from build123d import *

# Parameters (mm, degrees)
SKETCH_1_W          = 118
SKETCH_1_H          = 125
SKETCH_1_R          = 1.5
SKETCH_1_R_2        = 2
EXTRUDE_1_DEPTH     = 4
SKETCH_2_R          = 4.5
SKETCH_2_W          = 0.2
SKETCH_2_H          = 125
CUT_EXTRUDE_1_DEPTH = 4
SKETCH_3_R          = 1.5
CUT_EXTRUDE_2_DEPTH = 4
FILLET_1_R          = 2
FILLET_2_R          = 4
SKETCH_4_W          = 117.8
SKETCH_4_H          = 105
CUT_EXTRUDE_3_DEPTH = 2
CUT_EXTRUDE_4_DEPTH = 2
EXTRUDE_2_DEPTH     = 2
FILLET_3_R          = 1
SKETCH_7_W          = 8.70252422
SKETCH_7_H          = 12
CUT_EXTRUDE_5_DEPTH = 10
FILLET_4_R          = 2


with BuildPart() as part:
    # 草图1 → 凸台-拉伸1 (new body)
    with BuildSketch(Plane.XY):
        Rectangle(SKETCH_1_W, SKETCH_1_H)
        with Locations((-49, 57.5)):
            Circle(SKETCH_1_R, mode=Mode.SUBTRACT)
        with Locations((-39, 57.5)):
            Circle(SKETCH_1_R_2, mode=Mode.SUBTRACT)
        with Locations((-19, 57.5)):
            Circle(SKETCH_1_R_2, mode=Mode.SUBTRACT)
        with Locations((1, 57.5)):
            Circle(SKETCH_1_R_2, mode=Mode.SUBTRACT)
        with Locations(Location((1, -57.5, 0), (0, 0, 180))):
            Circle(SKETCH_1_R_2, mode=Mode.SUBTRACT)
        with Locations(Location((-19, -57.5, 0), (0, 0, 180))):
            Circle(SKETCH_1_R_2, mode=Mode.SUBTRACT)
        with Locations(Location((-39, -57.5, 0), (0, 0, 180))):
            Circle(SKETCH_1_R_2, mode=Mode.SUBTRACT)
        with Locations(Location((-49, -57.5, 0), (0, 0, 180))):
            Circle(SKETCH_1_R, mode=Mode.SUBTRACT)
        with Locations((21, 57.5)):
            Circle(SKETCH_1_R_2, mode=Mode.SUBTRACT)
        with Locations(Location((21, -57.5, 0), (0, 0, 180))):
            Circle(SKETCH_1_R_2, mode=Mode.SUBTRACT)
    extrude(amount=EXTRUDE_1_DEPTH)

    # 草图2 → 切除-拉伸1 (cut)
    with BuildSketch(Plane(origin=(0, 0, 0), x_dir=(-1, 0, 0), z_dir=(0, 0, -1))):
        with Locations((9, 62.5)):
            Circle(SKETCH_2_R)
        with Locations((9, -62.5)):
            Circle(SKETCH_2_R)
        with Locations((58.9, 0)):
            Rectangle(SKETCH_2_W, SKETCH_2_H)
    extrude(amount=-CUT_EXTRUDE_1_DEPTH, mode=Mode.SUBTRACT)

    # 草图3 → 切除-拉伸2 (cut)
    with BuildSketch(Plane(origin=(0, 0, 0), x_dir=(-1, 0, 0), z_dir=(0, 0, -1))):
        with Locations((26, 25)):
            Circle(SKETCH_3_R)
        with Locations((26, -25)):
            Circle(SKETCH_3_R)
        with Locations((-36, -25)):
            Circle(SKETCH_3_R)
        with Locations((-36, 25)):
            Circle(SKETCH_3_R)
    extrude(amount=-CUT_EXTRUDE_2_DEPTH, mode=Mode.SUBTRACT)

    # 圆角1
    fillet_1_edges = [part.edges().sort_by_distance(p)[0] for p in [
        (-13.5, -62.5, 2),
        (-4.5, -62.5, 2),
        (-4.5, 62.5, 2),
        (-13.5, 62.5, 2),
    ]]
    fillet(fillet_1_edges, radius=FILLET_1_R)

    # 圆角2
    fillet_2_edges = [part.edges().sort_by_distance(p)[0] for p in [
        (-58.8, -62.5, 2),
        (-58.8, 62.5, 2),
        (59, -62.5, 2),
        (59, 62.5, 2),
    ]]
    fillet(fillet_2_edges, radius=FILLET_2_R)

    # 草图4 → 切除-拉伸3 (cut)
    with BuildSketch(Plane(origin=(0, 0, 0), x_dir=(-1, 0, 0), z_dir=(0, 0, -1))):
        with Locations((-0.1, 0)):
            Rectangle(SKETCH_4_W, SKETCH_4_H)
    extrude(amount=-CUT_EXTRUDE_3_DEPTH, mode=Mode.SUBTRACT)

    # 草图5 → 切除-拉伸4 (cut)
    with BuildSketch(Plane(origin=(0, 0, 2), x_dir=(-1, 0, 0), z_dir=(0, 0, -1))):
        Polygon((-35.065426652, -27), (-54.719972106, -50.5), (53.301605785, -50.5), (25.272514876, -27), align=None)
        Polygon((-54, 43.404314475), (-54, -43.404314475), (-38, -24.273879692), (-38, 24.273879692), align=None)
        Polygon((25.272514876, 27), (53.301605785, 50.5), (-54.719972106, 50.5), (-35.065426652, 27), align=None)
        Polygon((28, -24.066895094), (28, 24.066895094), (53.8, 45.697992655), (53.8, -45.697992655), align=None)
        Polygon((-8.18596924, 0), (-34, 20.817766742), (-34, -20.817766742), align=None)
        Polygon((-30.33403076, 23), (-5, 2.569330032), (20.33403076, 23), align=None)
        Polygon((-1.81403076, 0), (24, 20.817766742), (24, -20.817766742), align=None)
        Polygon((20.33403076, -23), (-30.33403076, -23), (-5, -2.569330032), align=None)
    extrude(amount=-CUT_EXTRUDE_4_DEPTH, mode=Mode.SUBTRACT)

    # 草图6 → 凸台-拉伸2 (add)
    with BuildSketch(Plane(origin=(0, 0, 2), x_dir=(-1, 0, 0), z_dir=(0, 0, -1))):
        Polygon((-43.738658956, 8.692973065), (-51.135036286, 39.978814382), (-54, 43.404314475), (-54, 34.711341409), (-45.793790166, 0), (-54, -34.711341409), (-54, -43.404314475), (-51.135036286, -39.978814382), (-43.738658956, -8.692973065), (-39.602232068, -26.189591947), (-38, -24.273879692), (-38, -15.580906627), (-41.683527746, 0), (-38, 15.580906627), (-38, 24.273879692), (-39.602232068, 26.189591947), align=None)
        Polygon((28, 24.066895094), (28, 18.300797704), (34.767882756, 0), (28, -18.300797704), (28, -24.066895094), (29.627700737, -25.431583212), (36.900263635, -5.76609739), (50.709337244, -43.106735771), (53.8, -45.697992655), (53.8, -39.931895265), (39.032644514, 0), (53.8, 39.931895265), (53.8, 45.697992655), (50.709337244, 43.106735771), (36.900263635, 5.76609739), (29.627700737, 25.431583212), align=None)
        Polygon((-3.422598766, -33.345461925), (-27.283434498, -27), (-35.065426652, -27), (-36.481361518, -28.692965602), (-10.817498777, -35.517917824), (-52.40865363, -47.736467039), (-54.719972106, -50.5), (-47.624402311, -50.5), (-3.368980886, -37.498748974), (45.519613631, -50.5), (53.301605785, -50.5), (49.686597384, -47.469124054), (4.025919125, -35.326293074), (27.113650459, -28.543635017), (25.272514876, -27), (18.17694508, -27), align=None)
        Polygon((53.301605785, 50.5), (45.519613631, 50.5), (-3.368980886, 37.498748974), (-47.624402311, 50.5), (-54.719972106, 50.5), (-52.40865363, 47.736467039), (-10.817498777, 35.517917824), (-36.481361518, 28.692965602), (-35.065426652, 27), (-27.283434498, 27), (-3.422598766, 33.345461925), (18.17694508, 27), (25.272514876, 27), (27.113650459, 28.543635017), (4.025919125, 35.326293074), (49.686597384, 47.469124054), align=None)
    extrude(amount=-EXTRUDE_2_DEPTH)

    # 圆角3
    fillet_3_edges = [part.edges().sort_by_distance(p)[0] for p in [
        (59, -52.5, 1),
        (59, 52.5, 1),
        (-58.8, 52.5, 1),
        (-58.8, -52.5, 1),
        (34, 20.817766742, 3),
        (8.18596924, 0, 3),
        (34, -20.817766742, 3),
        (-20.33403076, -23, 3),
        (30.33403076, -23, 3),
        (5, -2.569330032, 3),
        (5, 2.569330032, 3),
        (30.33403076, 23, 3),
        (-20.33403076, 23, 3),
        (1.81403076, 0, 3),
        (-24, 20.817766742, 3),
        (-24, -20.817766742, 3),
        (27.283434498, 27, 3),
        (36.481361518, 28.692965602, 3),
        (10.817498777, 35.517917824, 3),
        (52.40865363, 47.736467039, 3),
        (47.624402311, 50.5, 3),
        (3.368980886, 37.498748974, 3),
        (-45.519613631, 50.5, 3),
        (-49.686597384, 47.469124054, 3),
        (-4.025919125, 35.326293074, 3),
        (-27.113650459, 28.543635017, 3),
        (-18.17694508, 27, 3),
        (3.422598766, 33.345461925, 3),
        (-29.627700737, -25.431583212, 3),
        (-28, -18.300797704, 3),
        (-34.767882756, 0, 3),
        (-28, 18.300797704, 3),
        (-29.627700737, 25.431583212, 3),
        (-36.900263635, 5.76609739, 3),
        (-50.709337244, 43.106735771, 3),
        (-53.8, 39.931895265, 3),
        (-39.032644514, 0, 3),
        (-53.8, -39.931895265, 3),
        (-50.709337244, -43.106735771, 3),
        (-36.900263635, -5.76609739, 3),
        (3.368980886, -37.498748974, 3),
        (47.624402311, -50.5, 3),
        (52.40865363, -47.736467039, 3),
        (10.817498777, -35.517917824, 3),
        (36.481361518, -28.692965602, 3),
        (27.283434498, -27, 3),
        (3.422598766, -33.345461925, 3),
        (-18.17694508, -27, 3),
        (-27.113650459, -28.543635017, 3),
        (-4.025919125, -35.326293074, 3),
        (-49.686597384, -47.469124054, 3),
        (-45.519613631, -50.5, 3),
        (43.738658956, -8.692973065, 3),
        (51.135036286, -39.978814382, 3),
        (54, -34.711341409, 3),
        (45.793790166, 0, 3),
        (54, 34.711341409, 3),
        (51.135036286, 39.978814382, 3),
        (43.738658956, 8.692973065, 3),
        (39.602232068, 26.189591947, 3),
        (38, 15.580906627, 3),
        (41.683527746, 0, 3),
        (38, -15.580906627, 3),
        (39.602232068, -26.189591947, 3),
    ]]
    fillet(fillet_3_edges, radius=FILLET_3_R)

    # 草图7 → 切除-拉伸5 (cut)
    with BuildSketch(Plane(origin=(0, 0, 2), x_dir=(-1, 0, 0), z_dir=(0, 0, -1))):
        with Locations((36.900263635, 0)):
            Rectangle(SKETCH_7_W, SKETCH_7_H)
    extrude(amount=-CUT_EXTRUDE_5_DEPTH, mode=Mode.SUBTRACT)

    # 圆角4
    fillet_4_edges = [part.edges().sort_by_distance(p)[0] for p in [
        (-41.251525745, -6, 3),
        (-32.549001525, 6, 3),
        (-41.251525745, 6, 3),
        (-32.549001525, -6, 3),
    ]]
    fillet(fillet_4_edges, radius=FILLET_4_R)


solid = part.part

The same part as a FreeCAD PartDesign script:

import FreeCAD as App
import Part
import Sketcher
from FreeCAD import Vector


def edges_at(feature, points):
    """Names of the edges that pass closest to the given points."""
    edges = feature.Shape.Edges
    near = lambda p: min(range(len(edges)), key=lambda i: edges[i].distToShape(Part.Vertex(*p))[0])
    return sorted({f"Edge{near(p) + 1}" for p in points})


def add_polygon(sketch, points):
    """Adds a closed chain of lines whose ends are joined by coincident constraints."""
    first, n = sketch.GeometryCount, len(points)
    for a, b in zip(points, points[1:] + points[:1]):
        sketch.addGeometry(Part.LineSegment(App.Vector(*a, 0), App.Vector(*b, 0)), False)
    for i in range(n):
        sketch.addConstraint(Sketcher.Constraint("Coincident", first + i, 2, first + (i + 1) % n, 1))

doc = App.newDocument("Part")
body = doc.addObject("PartDesign::Body", "Body")

# Sketch on XY plane
sketch1 = body.newObject("Sketcher::SketchObject", "Sketch")
sketch1.AttachmentSupport = (doc.getObject("XY_Plane"), [""])
sketch1.MapMode = "FlatFace"
add_polygon(sketch1, [(-59, 62.5), (-59, -62.5), (59, -62.5), (59, 62.5)])  # lines 0-3
sketch1.addGeometry(Part.Circle(Vector(-49, -57.5, 0), Vector(0, 0, 1), 1.5), False)  # 4
sketch1.addGeometry(Part.Circle(Vector(-39, -57.5, 0), Vector(0, 0, 1), 2), False)  # 5
sketch1.addGeometry(Part.Circle(Vector(-19, -57.5, 0), Vector(0, 0, 1), 2), False)  # 6
sketch1.addGeometry(Part.Circle(Vector(1, -57.5, 0), Vector(0, 0, 1), 2), False)  # 7
sketch1.addGeometry(Part.Circle(Vector(21, -57.5, 0), Vector(0, 0, 1), 2), False)  # 8
sketch1.addGeometry(Part.Circle(Vector(-49, 57.5, 0), Vector(0, 0, 1), 1.5), False)  # 9
sketch1.addGeometry(Part.Circle(Vector(-39, 57.5, 0), Vector(0, 0, 1), 2), False)  # 10
sketch1.addGeometry(Part.Circle(Vector(-19, 57.5, 0), Vector(0, 0, 1), 2), False)  # 11
sketch1.addGeometry(Part.Circle(Vector(1, 57.5, 0), Vector(0, 0, 1), 2), False)  # 12
sketch1.addGeometry(Part.Circle(Vector(21, 57.5, 0), Vector(0, 0, 1), 2), False)  # 13
sketch1.addConstraint([
    Sketcher.Constraint("Vertical", 0),
    Sketcher.Constraint("Horizontal", 1),
    Sketcher.Constraint("Vertical", 2),
    Sketcher.Constraint("Horizontal", 3),
    Sketcher.Constraint("Equal", 5, 6),
    Sketcher.Constraint("Equal", 6, 7),
    Sketcher.Constraint("Equal", 7, 8),
    Sketcher.Constraint("Equal", 4, 9),
    Sketcher.Constraint("Equal", 8, 10),
    Sketcher.Constraint("Equal", 10, 11),
    Sketcher.Constraint("Equal", 11, 12),
    Sketcher.Constraint("Equal", 12, 13),
    Sketcher.Constraint("Symmetric", 0, 2, 2, 2, -1, 1),
    Sketcher.Constraint("Symmetric", 4, 3, 9, 3, -1),
    Sketcher.Constraint("Symmetric", 5, 3, 10, 3, -1),
    Sketcher.Constraint("Symmetric", 6, 3, 11, 3, -1),
    Sketcher.Constraint("Symmetric", 7, 3, 12, 3, -1),
    Sketcher.Constraint("Symmetric", 8, 3, 13, 3, -1),
    Sketcher.Constraint("Horizontal", 4, 3, 5, 3),
    Sketcher.Constraint("Horizontal", 5, 3, 6, 3),
    Sketcher.Constraint("Horizontal", 6, 3, 7, 3),
    Sketcher.Constraint("Horizontal", 7, 3, 8, 3),
    Sketcher.Constraint("Diameter", 4, 3.0),
    Sketcher.Constraint("Diameter", 5, 4.0),
    Sketcher.Constraint("DistanceX", 1, 1, 1, 2, 118.0),
    Sketcher.Constraint("DistanceY", 0, 2, 0, 1, 125.0),
    Sketcher.Constraint("DistanceX", 4, 3, -1, 1, 49.0),
    Sketcher.Constraint("DistanceX", 5, 3, -1, 1, 39.0),
    Sketcher.Constraint("DistanceX", 6, 3, -1, 1, 19.0),
    Sketcher.Constraint("DistanceX", -1, 1, 7, 3, 1.0),
    Sketcher.Constraint("DistanceX", -1, 1, 8, 3, 21.0),
    Sketcher.Constraint("DistanceY", 4, 3, 9, 3, 115.0),
])
pad1 = body.newObject("PartDesign::Pad", "Pad")
pad1.Profile = sketch1
pad1.Length = 4

# Sketch on XY plane
sketch2 = body.newObject("Sketcher::SketchObject", "Sketch001")
sketch2.AttachmentSupport = (doc.getObject("XY_Plane"), [""])
sketch2.MapMode = "FlatFace"
sketch2.addGeometry(Part.Circle(Vector(-9, 62.5, 0), Vector(0, 0, 1), 4.5), False)  # 0
sketch2.addGeometry(Part.Circle(Vector(-9, -62.5, 0), Vector(0, 0, 1), 4.5), False)  # 1
add_polygon(sketch2, [(-58.8, 62.5), (-58.8, -62.5), (-59, -62.5), (-59, 62.5)])  # lines 2-5
sketch2.addConstraint([
    Sketcher.Constraint("Vertical", 2),
    Sketcher.Constraint("Horizontal", 3),
    Sketcher.Constraint("Vertical", 4),
    Sketcher.Constraint("Horizontal", 5),
    Sketcher.Constraint("Equal", 0, 1),
    Sketcher.Constraint("Symmetric", 0, 3, 1, 3, -1),
    Sketcher.Constraint("Horizontal", 1, 3, 2, 2),
    Sketcher.Constraint("Horizontal", 0, 3, 4, 2),
    Sketcher.Constraint("Diameter", 0, 9.0),
    Sketcher.Constraint("DistanceY", 2, 2, 2, 1, 125.0),
    Sketcher.Constraint("DistanceX", 3, 2, 3, 1, 0.2),
    Sketcher.Constraint("DistanceX", 0, 3, -1, 1, 9.0),
    Sketcher.Constraint("DistanceX", 3, 2, -1, 1, 59.0),
])
pocket1 = body.newObject("PartDesign::Pocket", "Pocket")
pocket1.Profile = sketch2
pocket1.Length = 4
pocket1.Reversed = True

# Sketch on XY plane
sketch3 = body.newObject("Sketcher::SketchObject", "Sketch002")
sketch3.AttachmentSupport = (doc.getObject("XY_Plane"), [""])
sketch3.MapMode = "FlatFace"
sketch3.addGeometry([
    Part.Circle(Vector(-26, 25, 0), Vector(0, 0, 1), 1.5),
    Part.Circle(Vector(-26, -25, 0), Vector(0, 0, 1), 1.5),
    Part.Circle(Vector(36, -25, 0), Vector(0, 0, 1), 1.5),
    Part.Circle(Vector(36, 25, 0), Vector(0, 0, 1), 1.5),
], False)
sketch3.addConstraint([
    Sketcher.Constraint("Equal", 0, 1),
    Sketcher.Constraint("Equal", 1, 2),
    Sketcher.Constraint("Equal", 2, 3),
    Sketcher.Constraint("Symmetric", 0, 3, 1, 3, -1),
    Sketcher.Constraint("Symmetric", 2, 3, 3, 3, -1),
    Sketcher.Constraint("Horizontal", 1, 3, 2, 3),
    Sketcher.Constraint("Diameter", 0, 3.0),
    Sketcher.Constraint("DistanceX", 0, 3, -1, 1, 26.0),
    Sketcher.Constraint("DistanceY", -1, 1, 0, 3, 25.0),
    Sketcher.Constraint("DistanceX", -1, 1, 2, 3, 36.0),
])
pocket2 = body.newObject("PartDesign::Pocket", "Pocket001")
pocket2.Profile = sketch3
pocket2.Length = 4
pocket2.Reversed = True
doc.recompute()

fillet = body.newObject("PartDesign::Fillet", "Fillet")
fillet.Base = (pocket2, edges_at(pocket2, [
    (-13.5, -62.5, 2),
    (-4.5, -62.5, 2),
    (-4.5, 62.5, 2),
    (-13.5, 62.5, 2),
]))
fillet.Radius = 2
doc.recompute()

fillet2 = body.newObject("PartDesign::Fillet", "Fillet001")
fillet2.Base = (fillet, edges_at(fillet, [
    (-58.8, -62.5, 2),
    (-58.8, 62.5, 2),
    (59, -62.5, 2),
    (59, 62.5, 2),
]))
fillet2.Radius = 4

# Sketch on XY plane
sketch4 = body.newObject("Sketcher::SketchObject", "Sketch003")
sketch4.AttachmentSupport = (doc.getObject("XY_Plane"), [""])
sketch4.MapMode = "FlatFace"
add_polygon(sketch4, [(59, 52), (59, -52), (-59, -52), (-59, 52)])  # lines 0-3
sketch4.addConstraint([
    Sketcher.Constraint("Vertical", 0),
    Sketcher.Constraint("Horizontal", 1),
    Sketcher.Constraint("Vertical", 2),
    Sketcher.Constraint("Horizontal", 3),
    Sketcher.Constraint("DistanceY", 0, 2, 0, 1, 105.0),
    Sketcher.Constraint("DistanceX", 1, 2, 1, 1, 117.8),
    Sketcher.Constraint("DistanceX", -1, 1, 0, 2, 59.0),
    Sketcher.Constraint("DistanceY", 0, 2, -1, 1, 52.5),
])
pocket3 = body.newObject("PartDesign::Pocket", "Pocket002")
pocket3.Profile = sketch4
pocket3.Length = 2
pocket3.Reversed = True

# Sketch on XY plane
sketch5 = body.newObject("Sketcher::SketchObject", "Sketch004")
sketch5.AttachmentSupport = (doc.getObject("XY_Plane"), [""])
sketch5.MapMode = "FlatFace"
sketch5.AttachmentOffset = App.Placement(Vector(0, 0, 2), App.Rotation())
add_polygon(sketch5, [(35, -27), (55, -50), (-53, -50), (-25, -27)])  # lines 0-3
add_polygon(sketch5, [(54, 43), (54, -43), (38, -24), (38, 24)])  # lines 4-7
add_polygon(sketch5, [(-25, 27), (-53, 50), (55, 50), (35, 27)])  # lines 8-11
add_polygon(sketch5, [(-28, 24), (-28, -24), (-54, -46), (-54, 46)])  # lines 12-15
add_polygon(sketch5, [(8, 0), (34, 21), (34, -21)])  # lines 16-18
add_polygon(sketch5, [(30, 23), (5, 3), (-20, 23)])  # lines 19-21
add_polygon(sketch5, [(-24, 21), (2, 0), (-24, -21)])  # lines 22-24
add_polygon(sketch5, [(30, -23), (-20, -23), (5, -3)])  # lines 25-27
sketch5.addConstraint([
    Sketcher.Constraint("Horizontal", 1),
    Sketcher.Constraint("Horizontal", 3),
    Sketcher.Constraint("Vertical", 4),
    Sketcher.Constraint("Vertical", 6),
    Sketcher.Constraint("Horizontal", 9),
    Sketcher.Constraint("Horizontal", 11),
    Sketcher.Constraint("Vertical", 12),
    Sketcher.Constraint("Vertical", 14),
    Sketcher.Constraint("Vertical", 17),
    Sketcher.Constraint("Horizontal", 21),
    Sketcher.Constraint("Vertical", 24),
    Sketcher.Constraint("Horizontal", 25),
    Sketcher.Constraint("Symmetric", 1, 2, 8, 2, -1),
    Sketcher.Constraint("Symmetric", 3, 2, 10, 2, -1),
    Sketcher.Constraint("Symmetric", 20, 2, 25, 2, -1),
    Sketcher.Constraint("Symmetric", 19, 2, 26, 2, -1),
    Sketcher.Constraint("PointOnObject", 18, 2, -1),
    Sketcher.Constraint("PointOnObject", 22, 2, -1),
    Sketcher.Constraint("Parallel", 0, 5),
    Sketcher.Constraint("Parallel", 7, 10),
    Sketcher.Constraint("Parallel", 2, 13),
    Sketcher.Constraint("Parallel", 8, 15),
    Sketcher.Constraint("Parallel", 16, 19),
    Sketcher.Constraint("Parallel", 18, 20),
    Sketcher.Constraint("Parallel", 20, 22),
    Sketcher.Constraint("Parallel", 19, 23),
    Sketcher.Constraint("Parallel", 23, 26),
    Sketcher.Constraint("Parallel", 22, 27),
    Sketcher.Constraint("Horizontal", 17, 2, 23, 2),
    Sketcher.Constraint("Vertical", 0, 2, 9, 2),
    Sketcher.Constraint("Vertical", 2, 2, 11, 2),
    Sketcher.Constraint("DistanceY", 2, 2, -1, 1, 27.0),
    Sketcher.Constraint("DistanceX", -1, 1, 4, 2, 54.0),
    Sketcher.Constraint("DistanceX", -1, 1, 5, 2, 38.0),
    Sketcher.Constraint("DistanceX", 12, 2, -1, 1, 28.0),
    Sketcher.Constraint("DistanceX", -1, 1, 16, 2, 34.0),
    Sketcher.Constraint("DistanceX", -1, 1, 19, 2, 5.0),
    Sketcher.Constraint("DistanceY", -1, 1, 20, 2, 23.0),
    Sketcher.Constraint("DistanceX", 23, 2, -1, 1, 24.0),
    Sketcher.Constraint("DistanceY", 1, 2, 8, 2, 101.0),
    Sketcher.Constraint("DistanceX", 13, 2, -1, 1, 53.8),
    Sketcher.Constraint("DistanceX", 20, 2, 18, 2, 28.52),
    Sketcher.Constraint("DistanceX", 3, 1, 3, 2, 60.337942),
    Sketcher.Constraint("DistanceX", 21, 1, 21, 2, 50.668062),
    Sketcher.Constraint("DistanceY", 4, 2, 4, 1, 86.808629),
    Sketcher.Constraint("DistanceY", 6, 1, 6, 2, 48.547759),
    Sketcher.Constraint("DistanceY", 12, 2, 12, 1, 48.13379),
    Sketcher.Constraint("Distance", 2, 36.577041),
    Sketcher.Constraint("DistanceY", 17, 2, 17, 1, 41.635533),
    Sketcher.Constraint("DistanceY", 5, 2, -1, 1, 24.27388),
    Sketcher.Constraint("DistanceY", 12, 2, 23, 2, 3.249128),
    Sketcher.Constraint("DistanceX", -1, 1, 0, 2, 54.719972),
])
pocket4 = body.newObject("PartDesign::Pocket", "Pocket003")
pocket4.Profile = sketch5
pocket4.Length = 2
pocket4.Reversed = True

# Sketch on XY plane
sketch6 = body.newObject("Sketcher::SketchObject", "Sketch005")
sketch6.AttachmentSupport = (doc.getObject("XY_Plane"), [""])
sketch6.MapMode = "FlatFace"
sketch6.AttachmentOffset = App.Placement(Vector(0, 0, 2), App.Rotation())
add_polygon(sketch6, [(43.738659, 8.692973), (51.135036, 39.978814), (54, 43.404314), (54, 34.711341), (45.79379, 0), (54, -34.711341), (54, -43.404314), (51.135036, -39.978814), (43.738659, -8.692973), (39.602232, -26.189592), (38, -24.27388), (38, -15.580907), (41.683528, 0), (38, 15.580907), (38, 24.27388), (39.602232, 26.189592)])  # lines 0-15
add_polygon(sketch6, [(-28, 24.066895), (-28, 18.300798), (-34.767883, 0), (-28, -18.300798), (-28, -24.066895), (-29.627701, -25.431583), (-36.900264, -5.766097), (-50.709337, -43.106736), (-53.8, -45.697993), (-53.8, -39.931895), (-39.032645, 0), (-53.8, 39.931895), (-53.8, 45.697993), (-50.709337, 43.106736), (-36.900264, 5.766097), (-29.627701, 25.431583)])  # lines 16-31
add_polygon(sketch6, [(3.422599, -33.345462), (27.283434, -27), (35.065427, -27), (36.481362, -28.692966), (10.817499, -35.517918), (52.408654, -47.736467), (54.719972, -50.5), (47.624402, -50.5), (3.368981, -37.498749), (-45.519614, -50.5), (-53.301606, -50.5), (-49.686597, -47.469124), (-4.025919, -35.326293), (-27.11365, -28.543635), (-25.272515, -27), (-18.176945, -27)])  # lines 32-47
add_polygon(sketch6, [(-53.301606, 50.5), (-45.519614, 50.5), (3.368981, 37.498749), (47.624402, 50.5), (54.719972, 50.5), (52.408654, 47.736467), (10.817499, 35.517918), (36.481362, 28.692966), (35.065427, 27), (27.283434, 27), (3.422599, 33.345462), (-18.176945, 27), (-25.272515, 27), (-27.11365, 28.543635), (-4.025919, 35.326293), (-49.686597, 47.469124)])  # lines 48-63
sketch6.addConstraint([
    Sketcher.Constraint("Vertical", 2),
    Sketcher.Constraint("Vertical", 5),
    Sketcher.Constraint("Vertical", 10),
    Sketcher.Constraint("Vertical", 13),
    Sketcher.Constraint("Vertical", 16),
    Sketcher.Constraint("Vertical", 19),
    Sketcher.Constraint("Vertical", 24),
    Sketcher.Constraint("Vertical", 27),
    Sketcher.Constraint("Horizontal", 33),
    Sketcher.Constraint("Horizontal", 38),
    Sketcher.Constraint("Horizontal", 41),
    Sketcher.Constraint("Horizontal", 46),
    Sketcher.Constraint("Horizontal", 48),
    Sketcher.Constraint("Horizontal", 51),
    Sketcher.Constraint("Horizontal", 56),
    Sketcher.Constraint("Horizontal", 59),
    Sketcher.Constraint("PointOnObject", 3, 2, -1),
    Sketcher.Constraint("PointOnObject", 11, 2, -1),
    Sketcher.Constraint("PointOnObject", 17, 2, -1),
    Sketcher.Constraint("PointOnObject", 25, 2, -1),
    Sketcher.Constraint("DistanceX", -1, 1, 1, 2, 54.0),
    Sketcher.Constraint("DistanceX", -1, 1, 4, 2, 54.0),
    Sketcher.Constraint("DistanceX", -1, 1, 9, 2, 38.0),
    Sketcher.Constraint("DistanceX", -1, 1, 12, 2, 38.0),
    Sketcher.Constraint("DistanceX", 16, 2, -1, 1, 28.0),
    Sketcher.Constraint("DistanceX", 18, 2, -1, 1, 28.0),
    Sketcher.Constraint("DistanceY", 32, 2, -1, 1, 27.0),
    Sketcher.Constraint("DistanceY", 45, 2, -1, 1, 27.0),
    Sketcher.Constraint("DistanceY", -1, 1, 55, 2, 27.0),
    Sketcher.Constraint("DistanceY", -1, 1, 58, 2, 27.0),
    Sketcher.Constraint("DistanceX", 23, 2, -1, 1, 53.8),
    Sketcher.Constraint("DistanceX", 26, 2, -1, 1, 53.8),
    Sketcher.Constraint("DistanceY", 37, 2, -1, 1, 50.5),
    Sketcher.Constraint("DistanceY", 40, 2, -1, 1, 50.5),
    Sketcher.Constraint("DistanceY", -1, 1, 48, 2, 50.5),
    Sketcher.Constraint("DistanceY", -1, 1, 50, 2, 50.5),
    Sketcher.Constraint("DistanceX", 38, 2, 38, 1, 7.09557),
    Sketcher.Constraint("DistanceX", 46, 1, 46, 2, 7.09557),
    Sketcher.Constraint("DistanceX", 51, 1, 51, 2, 7.09557),
    Sketcher.Constraint("DistanceX", 59, 2, 59, 1, 7.09557),
    Sketcher.Constraint("DistanceX", 20, 2, -1, 1, 29.627701),
    Sketcher.Constraint("DistanceX", 30, 2, -1, 1, 29.627701),
    Sketcher.Constraint("DistanceX", -1, 1, 35, 2, 10.817499),
    Sketcher.Constraint("DistanceX", -1, 1, 47, 2, 3.422599),
    Sketcher.Constraint("DistanceX", -1, 1, 53, 2, 10.817499),
    Sketcher.Constraint("DistanceX", -1, 1, 57, 2, 3.422599),
    Sketcher.Constraint("Distance", 3, 35.668181),
    Sketcher.Constraint("Distance", 4, 35.668181),
    Sketcher.Constraint("Distance", 9, 2.497419),
    Sketcher.Constraint("Distance", 14, 2.497419),
    Sketcher.Constraint("Distance", 22, 39.812232),
    Sketcher.Constraint("Distance", 29, 39.812232),
    Sketcher.Constraint("Distance", 37, 3.602681),
    Sketcher.Constraint("Distance", 44, 24.063412),
    Sketcher.Constraint("Distance", 45, 2.402621),
    Sketcher.Constraint("Distance", 52, 3.602681),
    Sketcher.Constraint("Distance", 60, 2.402621),
    Sketcher.Constraint("Distance", 61, 24.063412),
    Sketcher.Constraint("DistanceX", 33, 1, 33, 2, 7.781992),
    Sketcher.Constraint("DistanceX", 41, 2, 41, 1, 7.781992),
    Sketcher.Constraint("DistanceX", 48, 1, 48, 2, 7.781992),
    Sketcher.Constraint("DistanceX", 56, 2, 56, 1, 7.781992),
    Sketcher.Constraint("DistanceY", 2, 2, 2, 1, 8.692973),
    Sketcher.Constraint("DistanceY", 5, 2, 5, 1, 8.692973),
    Sketcher.Constraint("DistanceY", 10, 1, 10, 2, 8.692973),
    Sketcher.Constraint("DistanceY", 13, 1, 13, 2, 8.692973),
    Sketcher.Constraint("DistanceY", 16, 2, 16, 1, 5.766097),
    Sketcher.Constraint("DistanceY", 19, 2, 19, 1, 5.766097),
    Sketcher.Constraint("DistanceY", 24, 1, 24, 2, 5.766097),
    Sketcher.Constraint("DistanceY", 27, 1, 27, 2, 5.766097),
    Sketcher.Constraint("DistanceY", -1, 1, 2, 2, 34.711341),
    Sketcher.Constraint("DistanceX", -1, 1, 7, 2, 43.738659),
    Sketcher.Constraint("DistanceY", 8, 2, -1, 1, 26.189592),
    Sketcher.Constraint("DistanceY", 9, 2, -1, 1, 24.27388),
    Sketcher.Constraint("DistanceY", -1, 1, 13, 2, 24.27388),
    Sketcher.Constraint("DistanceY", -1, 1, 14, 2, 26.189592),
    Sketcher.Constraint("DistanceX", -1, 1, 15, 2, 43.738659),
    Sketcher.Constraint("DistanceX", -1, 1, 34, 2, 36.481362),
    Sketcher.Constraint("DistanceX", -1, 1, 39, 2, 3.368981),
    Sketcher.Constraint("DistanceY", 39, 2, -1, 1, 37.498749),
    Sketcher.Constraint("DistanceX", 43, 2, -1, 1, 4.025919),
    Sketcher.Constraint("DistanceX", 44, 2, -1, 1, 27.11365),
    Sketcher.Constraint("DistanceY", 47, 2, -1, 1, 33.345462),
    Sketcher.Constraint("DistanceX", -1, 1, 49, 2, 3.368981),
    Sketcher.Constraint("DistanceY", -1, 1, 49, 2, 37.498749),
    Sketcher.Constraint("DistanceX", -1, 1, 54, 2, 36.481362),
    Sketcher.Constraint("DistanceY", -1, 1, 57, 2, 33.345462),
    Sketcher.Constraint("DistanceX", 60, 2, -1, 1, 27.11365),
    Sketcher.Constraint("DistanceX", 61, 2, -1, 1, 4.025919),
    Sketcher.Constraint("Distance", 0, 32.148254),
    Sketcher.Constraint("Distance", 1, 4.465654),
    Sketcher.Constraint("Distance", 6, 4.465654),
    Sketcher.Constraint("Distance", 7, 32.148254),
    Sketcher.Constraint("Distance", 8, 17.978924),
    Sketcher.Constraint("Distance", 11, 16.010404),
    Sketcher.Constraint("Distance", 15, 17.978924),
    Sketcher.Constraint("Distance", 17, 19.512136),
    Sketcher.Constraint("Distance", 18, 19.512136),
    Sketcher.Constraint("Distance", 20, 2.124096),
    Sketcher.Constraint("Distance", 21, 20.967153),
    Sketcher.Constraint("Distance", 23, 4.033213),
    Sketcher.Constraint("Distance", 25, 42.575005),
    Sketcher.Constraint("Distance", 26, 42.575005),
    Sketcher.Constraint("Distance", 28, 4.033213),
    Sketcher.Constraint("Distance", 30, 20.967153),
    Sketcher.Constraint("Distance", 31, 2.124096),
    Sketcher.Constraint("Distance", 32, 24.690167),
    Sketcher.Constraint("Distance", 34, 2.207035),
    Sketcher.Constraint("Distance", 35, 26.555862),
    Sketcher.Constraint("Distance", 36, 43.348784),
    Sketcher.Constraint("Distance", 39, 46.125642),
    Sketcher.Constraint("Distance", 40, 50.587817),
    Sketcher.Constraint("Distance", 42, 4.717467),
    Sketcher.Constraint("Distance", 43, 47.247708),
    Sketcher.Constraint("Distance", 47, 22.512334),
    Sketcher.Constraint("Distance", 49, 50.587817),
    Sketcher.Constraint("Distance", 50, 46.125642),
    Sketcher.Constraint("Distance", 53, 43.348784),
    Sketcher.Constraint("Distance", 54, 26.555862),
    Sketcher.Constraint("Distance", 55, 2.207035),
    Sketcher.Constraint("Distance", 57, 24.690167),
    Sketcher.Constraint("Distance", 58, 22.512334),
    Sketcher.Constraint("Distance", 62, 47.247708),
    Sketcher.Constraint("Distance", 63, 4.717467),
    Sketcher.Constraint("DistanceY", -1, 1, 16, 2, 18.300798),
    Sketcher.Constraint("DistanceX", 21, 2, -1, 1, 36.900264),
    Sketcher.Constraint("DistanceX", 22, 2, -1, 1, 50.709337),
    Sketcher.Constraint("DistanceX", 28, 2, -1, 1, 50.709337),
])
pad2 = body.newObject("PartDesign::Pad", "Pad001")
pad2.Profile = sketch6
pad2.Length = 2
doc.recompute()

fillet3 = body.newObject("PartDesign::Fillet", "Fillet002")
fillet3.Base = (pad2, edges_at(pad2, [
    (59, -52.5, 1),
    (59, 52.5, 1),
    (-58.8, 52.5, 1),
    (-58.8, -52.5, 1),
    (34, 20.818, 3),
    (8.186, 0, 3),
    (34, -20.818, 3),
    (-20.334, -23, 3),
    (30.334, -23, 3),
    (5, -2.569, 3),
    (5, 2.569, 3),
    (30.334, 23, 3),
    (-20.334, 23, 3),
    (1.814, 0, 3),
    (-24, 20.818, 3),
    (-24, -20.818, 3),
    (27.283, 27, 3),
    (36.481, 28.693, 3),
    (10.817, 35.518, 3),
    (52.409, 47.736, 3),
    (47.624, 50.5, 3),
    (3.369, 37.499, 3),
    (-45.52, 50.5, 3),
    (-49.687, 47.469, 3),
    (-4.026, 35.326, 3),
    (-27.114, 28.544, 3),
    (-18.177, 27, 3),
    (3.423, 33.345, 3),
    (-29.628, -25.432, 3),
    (-28, -18.301, 3),
    (-34.768, 0, 3),
    (-28, 18.301, 3),
    (-29.628, 25.432, 3),
    (-36.9, 5.766, 3),
    (-50.709, 43.107, 3),
    (-53.8, 39.932, 3),
    (-39.033, 0, 3),
    (-53.8, -39.932, 3),
    (-50.709, -43.107, 3),
    (-36.9, -5.766, 3),
    (3.369, -37.499, 3),
    (47.624, -50.5, 3),
    (52.409, -47.736, 3),
    (10.817, -35.518, 3),
    (36.481, -28.693, 3),
    (27.283, -27, 3),
    (3.423, -33.345, 3),
    (-18.177, -27, 3),
    (-27.114, -28.544, 3),
    (-4.026, -35.326, 3),
    (-49.687, -47.469, 3),
    (-45.52, -50.5, 3),
    (43.739, -8.693, 3),
    (51.135, -39.979, 3),
    (54, -34.711, 3),
    (45.794, 0, 3),
    (54, 34.711, 3),
    (51.135, 39.979, 3),
    (43.739, 8.693, 3),
    (39.602, 26.19, 3),
    (38, 15.581, 3),
    (41.684, 0, 3),
    (38, -15.581, 3),
    (39.602, -26.19, 3),
]))
fillet3.Radius = 1

# Sketch on XY plane
sketch7 = body.newObject("Sketcher::SketchObject", "Sketch006")
sketch7.AttachmentSupport = (doc.getObject("XY_Plane"), [""])
sketch7.MapMode = "FlatFace"
sketch7.AttachmentOffset = App.Placement(Vector(0, 0, 2), App.Rotation())
add_polygon(sketch7, [(-33, 6), (-33, -6), (-41, -6), (-41, 6)])  # lines 0-3
sketch7.addConstraint([
    Sketcher.Constraint("Vertical", 0),
    Sketcher.Constraint("Horizontal", 1),
    Sketcher.Constraint("Vertical", 2),
    Sketcher.Constraint("Horizontal", 3),
    Sketcher.Constraint("DistanceY", 0, 2, 0, 1, 12.0),
    Sketcher.Constraint("DistanceY", 0, 2, -1, 1, 6.0),
    Sketcher.Constraint("DistanceX", 0, 2, -1, 1, 32.549002),
    Sketcher.Constraint("DistanceX", 1, 2, 1, 1, 8.702524),
])
pocket5 = body.newObject("PartDesign::Pocket", "Pocket004")
pocket5.Profile = sketch7
pocket5.Length = 10
pocket5.Reversed = True
doc.recompute()

fillet4 = body.newObject("PartDesign::Fillet", "Fillet003")
fillet4.Base = (pocket5, edges_at(pocket5, [
    (-41.252, -6, 3),
    (-32.549, 6, 3),
    (-41.252, 6, 3),
    (-32.549, -6, 3),
]))
fillet4.Radius = 2

doc.recompute()
